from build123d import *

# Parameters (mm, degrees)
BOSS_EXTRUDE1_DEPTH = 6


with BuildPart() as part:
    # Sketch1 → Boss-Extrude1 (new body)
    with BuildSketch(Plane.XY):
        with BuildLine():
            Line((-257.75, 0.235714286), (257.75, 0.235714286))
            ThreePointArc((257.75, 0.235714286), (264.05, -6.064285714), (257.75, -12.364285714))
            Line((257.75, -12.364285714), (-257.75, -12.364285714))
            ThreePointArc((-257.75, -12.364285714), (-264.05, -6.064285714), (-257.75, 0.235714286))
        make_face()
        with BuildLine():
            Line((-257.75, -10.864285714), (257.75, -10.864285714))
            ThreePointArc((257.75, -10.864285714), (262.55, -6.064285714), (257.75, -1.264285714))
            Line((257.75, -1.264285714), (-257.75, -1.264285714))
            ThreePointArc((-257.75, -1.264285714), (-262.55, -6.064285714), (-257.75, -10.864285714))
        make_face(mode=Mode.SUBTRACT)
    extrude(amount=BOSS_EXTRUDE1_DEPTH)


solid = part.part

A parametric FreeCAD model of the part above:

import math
import FreeCAD as App
import Part
import Sketcher
from FreeCAD import Vector

doc = App.newDocument("Part")
params = doc.addObject("Spreadsheet::Sheet", "Params")
for row, (alias, value) in enumerate([
    ("sketch1_radius", "6.3 mm"),
    ("sketch1_radius2", "4.8 mm"),
    ("sketch1_width", "515.5 mm"),
    ("pad1_length", "6 mm"),
], start=1):
    params.set(f"A{row}", alias)
    params.set(f"B{row}", "=" + value)
    params.setAlias(f"B{row}", alias)

body = doc.addObject("PartDesign::Body", "Body")

# Sketch on XY plane
sketch1 = body.newObject("Sketcher::SketchObject", "Sketch")
sketch1.AttachmentSupport = (doc.getObject("XY_Plane"), [""])
sketch1.MapMode = "FlatFace"
sketch1.addGeometry([
    Part.LineSegment(Vector(257.8, 0.2, 0), Vector(-257.8, 0.2, 0)),  # 0
    Part.ArcOfCircle(Part.Circle(Vector(-257.8, -6.1, 0), Vector(0, 0, 1), 6.3), math.radians(90), math.radians(270)),  # 1
    Part.LineSegment(Vector(-257.8, -12.4, 0), Vector(257.8, -12.4, 0)),  # 2
    Part.ArcOfCircle(Part.Circle(Vector(257.8, -6.1, 0), Vector(0, 0, 1), 6.3), math.radians(-90), math.radians(90)),  # 3
    Part.ArcOfCircle(Part.Circle(Vector(-257.8, -6.1, 0), Vector(0, 0, 1), 4.8), math.radians(90), math.radians(270)),  # 4
    Part.LineSegment(Vector(-257.8, -1.3, 0), Vector(257.8, -1.3, 0)),  # 5
    Part.ArcOfCircle(Part.Circle(Vector(257.8, -6.1, 0), Vector(0, 0, 1), 4.8), math.radians(-90), math.radians(90)),  # 6
    Part.LineSegment(Vector(257.8, -10.9, 0), Vector(-257.8, -10.9, 0)),  # 7
], False)
sketch1.addConstraint([
    Sketcher.Constraint("Tangent", 0, 2, 1, 1),
    Sketcher.Constraint("Tangent", 1, 2, 2, 1),
    Sketcher.Constraint("Tangent", 2, 2, 3, 1),
    Sketcher.Constraint("Tangent", 3, 2, 0, 1),
    Sketcher.Constraint("Tangent", 4, 1, 5, 1),
    Sketcher.Constraint("Tangent", 5, 2, 6, 2),
    Sketcher.Constraint("Tangent", 6, 1, 7, 1),
    Sketcher.Constraint("Tangent", 7, 2, 4, 2),
    Sketcher.Constraint("Horizontal", 0),
    Sketcher.Constraint("Horizontal", 2),
    Sketcher.Constraint("Horizontal", 5),
    Sketcher.Constraint("Horizontal", 7),
    Sketcher.Constraint("Coincident", 4, 3, 1, 3),
    Sketcher.Constraint("Vertical", 6, 3, 2, 2),
    Sketcher.Constraint("Radius", 1, 6.3),
    Sketcher.Constraint("Radius", 4, 4.8),
    Sketcher.Constraint("DistanceX", 0, 2, 0, 1, 515.5),
    Sketcher.Constraint("DistanceX", 1, 3, -1, 1, 257.75),
    Sketcher.Constraint("DistanceY", 1, 3, -1, 1, 6.064286),
])
sketch1.setExpression("Constraints[14]", "Params.sketch1_radius")
sketch1.setExpression("Constraints[15]", "Params.sketch1_radius2")
sketch1.setExpression("Constraints[16]", "Params.sketch1_width")
pad1 = body.newObject("PartDesign::Pad", "Pad")
pad1.Profile = sketch1
pad1.setExpression("Length", "Params.pad1_length")

doc.recompute()
